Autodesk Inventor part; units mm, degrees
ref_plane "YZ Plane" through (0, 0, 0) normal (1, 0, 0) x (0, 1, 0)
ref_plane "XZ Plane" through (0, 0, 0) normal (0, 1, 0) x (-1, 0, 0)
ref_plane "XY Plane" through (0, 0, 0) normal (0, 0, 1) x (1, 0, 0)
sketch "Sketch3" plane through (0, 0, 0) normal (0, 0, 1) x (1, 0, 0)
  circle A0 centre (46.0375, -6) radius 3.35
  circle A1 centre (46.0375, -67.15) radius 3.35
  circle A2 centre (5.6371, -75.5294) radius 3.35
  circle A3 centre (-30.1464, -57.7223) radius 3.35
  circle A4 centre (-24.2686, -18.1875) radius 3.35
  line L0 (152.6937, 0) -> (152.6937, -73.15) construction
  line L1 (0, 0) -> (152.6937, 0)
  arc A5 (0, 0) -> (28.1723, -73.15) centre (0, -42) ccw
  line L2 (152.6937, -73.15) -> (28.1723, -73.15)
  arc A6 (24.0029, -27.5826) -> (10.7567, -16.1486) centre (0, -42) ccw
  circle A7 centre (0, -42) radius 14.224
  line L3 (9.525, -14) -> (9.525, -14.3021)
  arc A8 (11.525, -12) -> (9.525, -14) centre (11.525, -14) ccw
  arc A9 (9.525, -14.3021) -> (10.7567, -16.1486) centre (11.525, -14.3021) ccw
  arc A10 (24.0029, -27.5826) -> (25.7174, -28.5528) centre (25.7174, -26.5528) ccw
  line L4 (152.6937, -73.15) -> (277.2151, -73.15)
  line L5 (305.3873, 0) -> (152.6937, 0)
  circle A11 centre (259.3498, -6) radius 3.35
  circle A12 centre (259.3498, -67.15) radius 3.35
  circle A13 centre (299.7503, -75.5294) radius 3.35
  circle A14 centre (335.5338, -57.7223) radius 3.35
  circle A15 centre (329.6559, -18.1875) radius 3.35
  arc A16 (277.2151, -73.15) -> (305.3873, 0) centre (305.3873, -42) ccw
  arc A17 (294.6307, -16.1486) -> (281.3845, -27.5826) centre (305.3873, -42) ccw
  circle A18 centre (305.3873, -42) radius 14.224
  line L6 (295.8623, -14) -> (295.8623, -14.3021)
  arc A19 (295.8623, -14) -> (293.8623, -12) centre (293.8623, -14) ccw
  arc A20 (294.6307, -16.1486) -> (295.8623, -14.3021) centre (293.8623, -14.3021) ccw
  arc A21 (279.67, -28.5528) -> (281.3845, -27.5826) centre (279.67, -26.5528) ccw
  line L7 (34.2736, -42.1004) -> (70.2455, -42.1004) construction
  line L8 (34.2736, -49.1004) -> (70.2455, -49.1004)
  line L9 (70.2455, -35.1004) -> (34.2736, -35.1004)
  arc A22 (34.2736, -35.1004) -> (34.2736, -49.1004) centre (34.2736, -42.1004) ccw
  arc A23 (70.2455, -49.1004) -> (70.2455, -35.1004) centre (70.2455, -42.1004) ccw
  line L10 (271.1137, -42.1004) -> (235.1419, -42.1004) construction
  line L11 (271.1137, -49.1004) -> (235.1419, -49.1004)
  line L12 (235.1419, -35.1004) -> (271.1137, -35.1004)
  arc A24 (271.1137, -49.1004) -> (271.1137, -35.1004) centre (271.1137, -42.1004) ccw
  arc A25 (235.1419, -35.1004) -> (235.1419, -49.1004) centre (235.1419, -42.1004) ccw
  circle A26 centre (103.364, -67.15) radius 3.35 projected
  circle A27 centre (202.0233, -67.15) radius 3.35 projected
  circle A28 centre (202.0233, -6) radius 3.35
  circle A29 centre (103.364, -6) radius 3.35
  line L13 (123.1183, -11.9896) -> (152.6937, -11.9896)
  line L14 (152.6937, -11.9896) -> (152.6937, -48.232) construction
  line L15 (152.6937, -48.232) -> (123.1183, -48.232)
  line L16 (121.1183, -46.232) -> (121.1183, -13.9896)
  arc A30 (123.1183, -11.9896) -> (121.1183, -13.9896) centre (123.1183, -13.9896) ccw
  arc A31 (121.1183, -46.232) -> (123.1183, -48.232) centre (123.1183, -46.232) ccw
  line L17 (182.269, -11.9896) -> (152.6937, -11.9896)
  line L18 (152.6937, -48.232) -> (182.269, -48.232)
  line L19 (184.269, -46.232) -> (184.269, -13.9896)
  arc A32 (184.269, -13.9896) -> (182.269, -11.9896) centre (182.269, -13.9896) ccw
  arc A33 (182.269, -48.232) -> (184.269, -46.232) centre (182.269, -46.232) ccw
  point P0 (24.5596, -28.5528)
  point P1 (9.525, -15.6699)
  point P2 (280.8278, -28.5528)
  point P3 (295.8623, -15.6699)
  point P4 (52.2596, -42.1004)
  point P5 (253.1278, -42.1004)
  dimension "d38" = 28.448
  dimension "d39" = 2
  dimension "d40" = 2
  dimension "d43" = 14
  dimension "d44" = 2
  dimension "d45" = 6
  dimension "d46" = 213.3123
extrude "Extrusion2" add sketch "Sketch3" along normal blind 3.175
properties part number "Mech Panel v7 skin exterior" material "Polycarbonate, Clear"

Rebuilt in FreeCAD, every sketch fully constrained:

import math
import FreeCAD as App
import Part
import Sketcher
Q = App.Units.Quantity

doc = App.newDocument("Part")
body = doc.addObject("PartDesign::Body", "Body")

# Sketch on XY plane
sketch1 = body.newObject("Sketcher::SketchObject", "Sketch")
sketch1.AttachmentSupport = (doc.getObject("XY_Plane"), [""])
sketch1.MapMode = "FlatFace"
sketch1.addGeometry([
    Part.LineSegment(App.Vector(305.3873, 0, 0), App.Vector(0, 0, 0)),  # 0
    Part.ArcOfCircle(Part.Circle(App.Vector(0, -42, 0), App.Vector(0, 0, 1), 42), math.radians(90), math.radians(312.126434)),  # 1
    Part.LineSegment(App.Vector(28.1723, -73.15, 0), App.Vector(277.2151, -73.15, 0)),  # 2
    Part.ArcOfCircle(Part.Circle(App.Vector(305.3873, -42, 0), App.Vector(0, 0, 1), 41.999945), math.radians(-132.126332), math.radians(90)),  # 3
    Part.Circle(App.Vector(5.6371, -75.5294, 0), App.Vector(0, 0, 1), 3.35),  # 4
    Part.Circle(App.Vector(46.0375, -67.15, 0), App.Vector(0, 0, 1), 3.35),  # 5
    Part.Circle(App.Vector(103.364, -67.15, 0), App.Vector(0, 0, 1), 3.35),  # 6
    Part.Circle(App.Vector(-30.1464, -57.7223, 0), App.Vector(0, 0, 1), 3.35),  # 7
    Part.LineSegment(App.Vector(70.2455, -49.1004, 0), App.Vector(34.2736, -49.1004, 0)),  # 8
    Part.ArcOfCircle(Part.Circle(App.Vector(34.2736, -42.1004, 0), App.Vector(0, 0, 1), 7), math.radians(90), math.radians(270)),  # 9
    Part.LineSegment(App.Vector(34.2736, -35.1004, 0), App.Vector(70.2455, -35.1004, 0)),  # 10
    Part.ArcOfCircle(Part.Circle(App.Vector(70.2455, -42.1004, 0), App.Vector(0, 0, 1), 7), math.radians(-90), math.radians(90)),  # 11
    Part.Circle(App.Vector(202.0233, -67.15, 0), App.Vector(0, 0, 1), 3.35),  # 12
    Part.Circle(App.Vector(299.7503, -75.5294, 0), App.Vector(0, 0, 1), 3.35),  # 13
    Part.Circle(App.Vector(259.3498, -67.15, 0), App.Vector(0, 0, 1), 3.35),  # 14
    Part.Circle(App.Vector(335.5338, -57.7223, 0), App.Vector(0, 0, 1), 3.35),  # 15
    Part.ArcOfCircle(Part.Circle(App.Vector(271.1137, -42.1004, 0), App.Vector(0, 0, 1), 7), math.radians(-90), math.radians(90)),  # 16
    Part.LineSegment(App.Vector(271.1137, -49.1004, 0), App.Vector(235.1419, -49.1004, 0)),  # 17
    Part.ArcOfCircle(Part.Circle(App.Vector(235.1419, -42.1004, 0), App.Vector(0, 0, 1), 7), math.radians(90), math.radians(270)),  # 18
    Part.LineSegment(App.Vector(235.1419, -35.1004, 0), App.Vector(271.1137, -35.1004, 0)),  # 19
    Part.Circle(App.Vector(0, -42, 0), App.Vector(0, 0, 1), 14.224),  # 20
    Part.Circle(App.Vector(-24.2686, -18.1875, 0), App.Vector(0, 0, 1), 3.35),  # 21
    Part.Circle(App.Vector(46.0375, -6, 0), App.Vector(0, 0, 1), 3.35),  # 22
    Part.Circle(App.Vector(103.364, -6, 0), App.Vector(0, 0, 1), 3.35),  # 23
    Part.ArcOfCircle(Part.Circle(App.Vector(123.1183, -13.9896, 0), App.Vector(0, 0, 1), 2), math.radians(90), math.radians(180)),  # 24
    Part.LineSegment(App.Vector(123.1183, -11.9896, 0), App.Vector(182.269, -11.9896, 0)),  # 25
    Part.ArcOfCircle(Part.Circle(App.Vector(182.269, -13.9896, 0), App.Vector(0, 0, 1), 2), math.radians(0), math.radians(90)),  # 26
    Part.LineSegment(App.Vector(184.269, -13.9896, 0), App.Vector(184.269, -46.232, 0)),  # 27
    Part.ArcOfCircle(Part.Circle(App.Vector(182.269, -46.232, 0), App.Vector(0, 0, 1), 2), math.radians(-90), math.radians(0)),  # 28
    Part.LineSegment(App.Vector(182.269, -48.232, 0), App.Vector(123.1183, -48.232, 0)),  # 29
    Part.ArcOfCircle(Part.Circle(App.Vector(123.1183, -46.232, 0), App.Vector(0, 0, 1), 2), math.radians(180), math.radians(270)),  # 30
    Part.LineSegment(App.Vector(121.1183, -46.232, 0), App.Vector(121.1183, -13.9896, 0)),  # 31
    Part.Circle(App.Vector(305.3873, -42, 0), App.Vector(0, 0, 1), 14.224),  # 32
    Part.Circle(App.Vector(202.0233, -6, 0), App.Vector(0, 0, 1), 3.35),  # 33
    Part.Circle(App.Vector(329.6559, -18.1875, 0), App.Vector(0, 0, 1), 3.35),  # 34
    Part.Circle(App.Vector(259.3498, -6, 0), App.Vector(0, 0, 1), 3.35),  # 35
], False)
sketch1.addConstraint([
    Sketcher.Constraint("Tangent", 0, 2, 1, 1),
    Sketcher.Constraint("Coincident", 1, 2, 2, 1),
    Sketcher.Constraint("Coincident", 2, 2, 3, 1),
    Sketcher.Constraint("Tangent", 3, 2, 0, 1),
    Sketcher.Constraint("Tangent", 8, 2, 9, 2),
    Sketcher.Constraint("Tangent", 9, 1, 10, 1),
    Sketcher.Constraint("Tangent", 10, 2, 11, 2),
    Sketcher.Constraint("Tangent", 11, 1, 8, 1),
    Sketcher.Constraint("Tangent", 16, 1, 17, 1),
    Sketcher.Constraint("Tangent", 17, 2, 18, 2),
    Sketcher.Constraint("Tangent", 18, 1, 19, 1),
    Sketcher.Constraint("Tangent", 19, 2, 16, 2),
    Sketcher.Constraint("Tangent", 24, 1, 25, 1),
    Sketcher.Constraint("Tangent", 25, 2, 26, 2),
    Sketcher.Constraint("Tangent", 26, 1, 27, 1),
    Sketcher.Constraint("Tangent", 27, 2, 28, 2),
    Sketcher.Constraint("Tangent", 28, 1, 29, 1),
    Sketcher.Constraint("Tangent", 29, 2, 30, 2),
    Sketcher.Constraint("Tangent", 30, 1, 31, 1),
    Sketcher.Constraint("Tangent", 31, 2, 24, 2),
    Sketcher.Constraint("Horizontal", 0),
    Sketcher.Constraint("Horizontal", 2),
    Sketcher.Constraint("Horizontal", 8),
    Sketcher.Constraint("Horizontal", 10),
    Sketcher.Constraint("Horizontal", 17),
    Sketcher.Constraint("Horizontal", 19),
    Sketcher.Constraint("Horizontal", 25),
    Sketcher.Constraint("Vertical", 27),
    Sketcher.Constraint("Horizontal", 29),
    Sketcher.Constraint("Vertical", 31),
    Sketcher.Constraint("Coincident", 0, 2, -1, 1),
    Sketcher.Constraint("Coincident", 20, 3, 1, 3),
    Sketcher.Constraint("Coincident", 32, 3, 3, 3),
    Sketcher.Constraint("Equal", 1, 3),
    Sketcher.Constraint("Equal", 4, 5),
    Sketcher.Constraint("Equal", 5, 6),
    Sketcher.Constraint("Equal", 6, 7),
    Sketcher.Constraint("Equal", 7, 12),
    Sketcher.Constraint("Equal", 12, 13),
    Sketcher.Constraint("Equal", 13, 14),
    Sketcher.Constraint("Equal", 14, 15),
    Sketcher.Constraint("Equal", 11, 16),
    Sketcher.Constraint("Equal", 15, 21),
    Sketcher.Constraint("Equal", 21, 22),
    Sketcher.Constraint("Equal", 22, 23),
    Sketcher.Constraint("Equal", 24, 26),
    Sketcher.Constraint("Equal", 26, 28),
    Sketcher.Constraint("Equal", 28, 30),
    Sketcher.Constraint("Equal", 20, 32),
    Sketcher.Constraint("Equal", 23, 33),
    Sketcher.Constraint("Equal", 33, 34),
    Sketcher.Constraint("Equal", 34, 35),
    Sketcher.Constraint("Horizontal", 5, 3, 6, 3),
    Sketcher.Constraint("Horizontal", 6, 3, 12, 3),
    Sketcher.Constraint("Horizontal", 4, 3, 13, 3),
    Sketcher.Constraint("Horizontal", 12, 3, 14, 3),
    Sketcher.Constraint("Horizontal", 7, 3, 15, 3),
    Sketcher.Constraint("Horizontal", 11, 3, 16, 3),
    Sketcher.Constraint("Horizontal", 22, 3, 23, 3),
    Sketcher.Constraint("Horizontal", 23, 3, 33, 3),
    Sketcher.Constraint("Horizontal", 21, 3, 34, 3),
    Sketcher.Constraint("Horizontal", 33, 3, 35, 3),
    Sketcher.Constraint("Vertical", 5, 3, 22, 3),
    Sketcher.Constraint("Vertical", 6, 3, 23, 3),
    Sketcher.Constraint("Vertical", 12, 3, 33, 3),
    Sketcher.Constraint("Vertical", 14, 3, 35, 3),
    Sketcher.Constraint("Equal", 10, 17),
    Sketcher.Constraint("Radius", 9, Q("7 mm")),
    Sketcher.Constraint("Radius", 24, Q("2 mm")),
    Sketcher.Constraint("Diameter", 20, Q("28.448 mm")),
    Sketcher.Constraint("DistanceY", 22, 3, -1, 1, Q("6 mm")),
    Sketcher.Constraint("Radius", 1, Q("42 mm")),
    Sketcher.Constraint("DistanceY", 1, 2, 5, 3, Q("6 mm")),
    Sketcher.Constraint("Diameter", 4, Q("6.7 mm")),
    Sketcher.Constraint("DistanceX", 8, 2, 8, 1, Q("35.972 mm")),
    Sketcher.Constraint("DistanceY", 5, 3, -1, 1, Q("67.15 mm")),
    Sketcher.Constraint("DistanceX", 7, 3, 9, 3, Q("64.42 mm")),
    Sketcher.Constraint("DistanceX", 16, 3, 15, 3, Q("64.42 mm")),
    Sketcher.Constraint("DistanceX", 0, 2, 0, 1, Q("305.3873 mm")),
    Sketcher.Constraint("DistanceX", 25, 1, 25, 2, Q("59.1507 mm")),
    Sketcher.Constraint("DistanceY", 27, 2, 27, 1, Q("32.2424 mm")),
    Sketcher.Constraint("DistanceX", -1, 1, 4, 3, Q("5.637 mm")),
    Sketcher.Constraint("DistanceX", -1, 1, 6, 3, Q("103.364 mm")),
    Sketcher.Constraint("DistanceX", -1, 1, 18, 3, Q("235.142 mm")),
    Sketcher.Constraint("DistanceX", -1, 1, 26, 3, Q("182.269 mm")),
    Sketcher.Constraint("DistanceY", 28, 3, -1, 1, Q("46.232 mm")),
    Sketcher.Constraint("DistanceX", -1, 1, 34, 3, Q("329.656 mm")),
    Sketcher.Constraint("DistanceY", 4, 3, 7, 3, Q("17.807 mm")),
    Sketcher.Constraint("DistanceX", 7, 3, 5, 3, Q("76.184 mm")),
    Sketcher.Constraint("DistanceY", 4, 3, 9, 3, Q("33.429 mm")),
    Sketcher.Constraint("DistanceX", 12, 3, 3, 3, Q("103.364 mm")),
    Sketcher.Constraint("DistanceX", 13, 3, 3, 3, Q("5.637 mm")),
    Sketcher.Constraint("DistanceX", 14, 3, 15, 3, Q("76.184 mm")),
    Sketcher.Constraint("DistanceY", 9, 3, 21, 3, Q("23.913 mm")),
    Sketcher.Constraint("DistanceY", 4, 3, -1, 1, Q("75.5294 mm")),
    Sketcher.Constraint("DistanceX", -1, 1, 5, 3, Q("46.0375 mm")),
    Sketcher.Constraint("DistanceX", 21, 3, -1, 1, Q("24.2686 mm")),
])
pad1 = body.newObject("PartDesign::Pad", "Pad")
pad1.Profile = sketch1
pad1.Length = 3.175

doc.recompute()
